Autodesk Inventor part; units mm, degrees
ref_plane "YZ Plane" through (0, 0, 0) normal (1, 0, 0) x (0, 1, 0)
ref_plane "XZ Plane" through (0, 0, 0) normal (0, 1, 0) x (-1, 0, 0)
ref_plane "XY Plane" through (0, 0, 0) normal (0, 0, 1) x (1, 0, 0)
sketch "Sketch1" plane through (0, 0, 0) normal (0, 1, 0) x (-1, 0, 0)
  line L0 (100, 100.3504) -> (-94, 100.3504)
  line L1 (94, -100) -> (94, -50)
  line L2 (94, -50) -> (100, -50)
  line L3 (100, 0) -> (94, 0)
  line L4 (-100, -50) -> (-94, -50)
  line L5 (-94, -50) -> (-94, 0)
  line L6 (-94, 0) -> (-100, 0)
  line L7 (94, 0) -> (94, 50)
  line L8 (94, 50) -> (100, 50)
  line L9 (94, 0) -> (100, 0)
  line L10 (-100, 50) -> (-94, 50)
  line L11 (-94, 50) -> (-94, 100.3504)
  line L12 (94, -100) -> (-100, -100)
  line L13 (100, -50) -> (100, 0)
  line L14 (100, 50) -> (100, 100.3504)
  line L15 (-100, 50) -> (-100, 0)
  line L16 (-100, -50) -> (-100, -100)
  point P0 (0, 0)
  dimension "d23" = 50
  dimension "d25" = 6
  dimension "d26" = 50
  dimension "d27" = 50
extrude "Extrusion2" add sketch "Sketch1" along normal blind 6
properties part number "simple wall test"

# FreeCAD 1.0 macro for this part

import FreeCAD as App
import Part
import Sketcher
Q = App.Units.Quantity

doc = App.newDocument("Part")
params = doc.addObject("Spreadsheet::Sheet", "Params")
for row, (alias, value) in enumerate([
    ("sketch1_width", "6 mm"),
    ("sketch1_height", "50 mm"),
    ("sketch1_width2", "194 mm"),
    ("pad1_length", "6 mm"),
], start=1):
    params.set(f"A{row}", alias)
    params.set(f"B{row}", "=" + value)
    params.setAlias(f"B{row}", alias)

body = doc.addObject("PartDesign::Body", "Body")

sketch1 = doc.addObject("Sketcher::SketchObject", "Sketch")
body.addObject(sketch1)
sketch1.AttachmentSupport = (doc.XZ_Plane, [""])
sketch1.MapMode = "FlatFace"
sketch1.addGeometry(Part.LineSegment(App.Vector(-100, 50, 0), App.Vector(-100, 100, 0)), False)
sketch1.addGeometry(Part.LineSegment(App.Vector(-100, 100, 0), App.Vector(94, 100, 0)), False)
sketch1.addGeometry(Part.LineSegment(App.Vector(94, 100, 0), App.Vector(94, 50, 0)), False)
sketch1.addGeometry(Part.LineSegment(App.Vector(94, 50, 0), App.Vector(100, 50, 0)), False)
sketch1.addGeometry(Part.LineSegment(App.Vector(100, 50, 0), App.Vector(100, 0, 0)), False)
sketch1.addGeometry(Part.LineSegment(App.Vector(100, 0, 0), App.Vector(94, 0, 0)), False)
sketch1.addGeometry(Part.LineSegment(App.Vector(94, 0, 0), App.Vector(94, -50, 0)), False)
sketch1.addGeometry(Part.LineSegment(App.Vector(94, -50, 0), App.Vector(100, -50, 0)), False)
sketch1.addGeometry(Part.LineSegment(App.Vector(100, -50, 0), App.Vector(100, -100, 0)), False)
sketch1.addGeometry(Part.LineSegment(App.Vector(100, -100, 0), App.Vector(-94, -100, 0)), False)
sketch1.addGeometry(Part.LineSegment(App.Vector(-94, -100, 0), App.Vector(-94, -50, 0)), False)
sketch1.addGeometry(Part.LineSegment(App.Vector(-94, -50, 0), App.Vector(-100, -50, 0)), False)
sketch1.addGeometry(Part.LineSegment(App.Vector(-100, -50, 0), App.Vector(-100, 0, 0)), False)
sketch1.addGeometry(Part.LineSegment(App.Vector(-100, 0, 0), App.Vector(-94, 0, 0)), False)
sketch1.addGeometry(Part.LineSegment(App.Vector(-94, 0, 0), App.Vector(-94, 50, 0)), False)
sketch1.addGeometry(Part.LineSegment(App.Vector(-94, 50, 0), App.Vector(-100, 50, 0)), False)
sketch1.addConstraint(Sketcher.Constraint("Coincident", 0, 2, 1, 1))
sketch1.addConstraint(Sketcher.Constraint("Coincident", 1, 2, 2, 1))
sketch1.addConstraint(Sketcher.Constraint("Coincident", 2, 2, 3, 1))
sketch1.addConstraint(Sketcher.Constraint("Coincident", 3, 2, 4, 1))
sketch1.addConstraint(Sketcher.Constraint("Coincident", 4, 2, 5, 1))
sketch1.addConstraint(Sketcher.Constraint("Coincident", 5, 2, 6, 1))
sketch1.addConstraint(Sketcher.Constraint("Coincident", 6, 2, 7, 1))
sketch1.addConstraint(Sketcher.Constraint("Coincident", 7, 2, 8, 1))
sketch1.addConstraint(Sketcher.Constraint("Coincident", 8, 2, 9, 1))
sketch1.addConstraint(Sketcher.Constraint("Coincident", 9, 2, 10, 1))
sketch1.addConstraint(Sketcher.Constraint("Coincident", 10, 2, 11, 1))
sketch1.addConstraint(Sketcher.Constraint("Coincident", 11, 2, 12, 1))
sketch1.addConstraint(Sketcher.Constraint("Coincident", 12, 2, 13, 1))
sketch1.addConstraint(Sketcher.Constraint("Coincident", 13, 2, 14, 1))
sketch1.addConstraint(Sketcher.Constraint("Coincident", 14, 2, 15, 1))
sketch1.addConstraint(Sketcher.Constraint("Coincident", 15, 2, 0, 1))
sketch1.addConstraint(Sketcher.Constraint("Vertical", 0))
sketch1.addConstraint(Sketcher.Constraint("Horizontal", 1))
sketch1.addConstraint(Sketcher.Constraint("Vertical", 2))
sketch1.addConstraint(Sketcher.Constraint("Horizontal", 3))
sketch1.addConstraint(Sketcher.Constraint("Vertical", 4))
sketch1.addConstraint(Sketcher.Constraint("Horizontal", 5))
sketch1.addConstraint(Sketcher.Constraint("Vertical", 6))
sketch1.addConstraint(Sketcher.Constraint("Horizontal", 7))
sketch1.addConstraint(Sketcher.Constraint("Vertical", 8))
sketch1.addConstraint(Sketcher.Constraint("Horizontal", 9))
sketch1.addConstraint(Sketcher.Constraint("Vertical", 10))
sketch1.addConstraint(Sketcher.Constraint("Horizontal", 11))
sketch1.addConstraint(Sketcher.Constraint("Vertical", 12))
sketch1.addConstraint(Sketcher.Constraint("Horizontal", 13))
sketch1.addConstraint(Sketcher.Constraint("Vertical", 14))
sketch1.addConstraint(Sketcher.Constraint("Horizontal", 15))
sketch1.addConstraint(Sketcher.Constraint("Symmetric", 2, 2, 10, 2, -1, 1))
sketch1.addConstraint(Sketcher.Constraint("Symmetric", 4, 2, 12, 2, -1, 1))
sketch1.addConstraint(Sketcher.Constraint("Symmetric", 6, 2, 14, 2, -1, 1))
sketch1.addConstraint(Sketcher.Constraint("Symmetric", 6, 2, 10, 2, -2))
sketch1.addConstraint(Sketcher.Constraint("PointOnObject", 4, 2, -1))
sketch1.addConstraint(Sketcher.Constraint("Vertical", 4, 2, 7, 2))
sketch1.addConstraint(Sketcher.Constraint("Vertical", 0, 2, 11, 2))
sketch1.addConstraint(Sketcher.Constraint("Equal", 6, 8))
sketch1.addConstraint(Sketcher.Constraint("DistanceX", 3, 1, 3, 2, Q("6 mm")))
sketch1.addConstraint(Sketcher.Constraint("DistanceY", 4, 2, 4, 1, Q("50 mm")))
sketch1.addConstraint(Sketcher.Constraint("DistanceX", 1, 1, 1, 2, Q("194 mm")))
sketch1.addConstraint(Sketcher.Constraint("DistanceY", 0, 1, 0, 2, Q("50.3504 mm")))
sketch1.setExpression("Constraints[40]", "Params.sketch1_width")
sketch1.setExpression("Constraints[41]", "Params.sketch1_height")
sketch1.setExpression("Constraints[42]", "Params.sketch1_width2")
pad1 = doc.addObject("PartDesign::Pad", "Pad")
body.addObject(pad1)
pad1.Profile = sketch1
pad1.setExpression("Length", "Params.pad1_length")
pad1.Reversed = True

doc.recompute()
